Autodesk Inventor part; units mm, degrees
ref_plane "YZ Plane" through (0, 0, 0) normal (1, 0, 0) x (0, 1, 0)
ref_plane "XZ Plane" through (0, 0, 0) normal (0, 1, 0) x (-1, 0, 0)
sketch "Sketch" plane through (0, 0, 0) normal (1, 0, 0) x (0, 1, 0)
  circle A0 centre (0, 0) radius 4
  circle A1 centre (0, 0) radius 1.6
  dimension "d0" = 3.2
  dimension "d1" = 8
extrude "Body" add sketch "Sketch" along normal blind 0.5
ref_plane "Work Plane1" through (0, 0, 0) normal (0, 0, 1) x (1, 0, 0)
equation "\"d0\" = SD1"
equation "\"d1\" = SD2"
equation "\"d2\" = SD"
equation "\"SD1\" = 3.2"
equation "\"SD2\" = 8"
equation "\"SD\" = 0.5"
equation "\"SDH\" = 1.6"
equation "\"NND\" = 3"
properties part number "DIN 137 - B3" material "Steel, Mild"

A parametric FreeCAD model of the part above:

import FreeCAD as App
import Part
import Sketcher

V = App.Vector
Q = App.Units.Quantity

doc = App.newDocument("Part")
body = doc.addObject("PartDesign::Body", "Body")

# Sketch on YZ plane
sketch1 = body.newObject("Sketcher::SketchObject", "Sketch")
sketch1.AttachmentSupport = (doc.getObject("YZ_Plane"), [""])
sketch1.MapMode = "FlatFace"
sketch1.addGeometry([
    Part.Circle(V(0, 0, 0), V(0, 0, 1), 4),
    Part.Circle(V(0, 0, 0), V(0, 0, 1), 1.6),
], False)
sketch1.addConstraint([
    Sketcher.Constraint("Coincident", 0, 3, -1, 1),
    Sketcher.Constraint("Coincident", 1, 3, -1, 1),
    Sketcher.Constraint("Diameter", 0, Q("8 mm")),
    Sketcher.Constraint("Diameter", 1, Q("3.2 mm")),
])
pad1 = body.newObject("PartDesign::Pad", "Pad")
pad1.Profile = sketch1
pad1.Length = 0.5

doc.recompute()
